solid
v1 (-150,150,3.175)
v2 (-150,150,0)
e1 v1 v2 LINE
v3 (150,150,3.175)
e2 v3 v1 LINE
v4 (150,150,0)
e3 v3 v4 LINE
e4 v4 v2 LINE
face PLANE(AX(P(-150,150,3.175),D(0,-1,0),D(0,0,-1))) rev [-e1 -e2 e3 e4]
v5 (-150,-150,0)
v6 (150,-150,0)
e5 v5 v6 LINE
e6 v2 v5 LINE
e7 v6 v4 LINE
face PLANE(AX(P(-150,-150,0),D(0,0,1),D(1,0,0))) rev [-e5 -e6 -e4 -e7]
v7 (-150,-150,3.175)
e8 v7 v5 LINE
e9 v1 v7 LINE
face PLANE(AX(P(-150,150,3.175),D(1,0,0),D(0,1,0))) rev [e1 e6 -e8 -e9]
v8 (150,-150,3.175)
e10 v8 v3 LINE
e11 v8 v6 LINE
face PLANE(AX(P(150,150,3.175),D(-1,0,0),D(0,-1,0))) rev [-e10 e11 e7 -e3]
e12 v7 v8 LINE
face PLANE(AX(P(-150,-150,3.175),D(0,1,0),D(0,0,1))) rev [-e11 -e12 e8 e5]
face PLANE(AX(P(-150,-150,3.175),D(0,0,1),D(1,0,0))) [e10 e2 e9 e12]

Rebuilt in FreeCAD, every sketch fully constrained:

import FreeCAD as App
import Part
import Sketcher


def add_polygon(sketch, points):
    """Adds a closed chain of lines whose ends are joined by coincident constraints."""
    first, n = sketch.GeometryCount, len(points)
    for a, b in zip(points, points[1:] + points[:1]):
        sketch.addGeometry(Part.LineSegment(App.Vector(*a, 0), App.Vector(*b, 0)), False)
    for i in range(n):
        sketch.addConstraint(Sketcher.Constraint("Coincident", first + i, 2, first + (i + 1) % n, 1))

doc = App.newDocument("Part")
body = doc.addObject("PartDesign::Body", "Body")

# Sketch on XY plane
sketch1 = doc.addObject("Sketcher::SketchObject", "Sketch")
body.addObject(sketch1)
sketch1.AttachmentSupport = (doc.XY_Plane, [""])
sketch1.MapMode = "FlatFace"
add_polygon(sketch1, [(-150, 150), (-150, -150), (150, -150), (150, 150)])  # lines 0-3
sketch1.addConstraint(Sketcher.Constraint("Vertical", 0))
sketch1.addConstraint(Sketcher.Constraint("Horizontal", 1))
sketch1.addConstraint(Sketcher.Constraint("Vertical", 2))
sketch1.addConstraint(Sketcher.Constraint("Horizontal", 3))
sketch1.addConstraint(Sketcher.Constraint("Symmetric", 0, 2, 2, 2, -1, 1))
sketch1.addConstraint(Sketcher.Constraint("Equal", 3, 0))
sketch1.addConstraint(Sketcher.Constraint("DistanceX", 1, 1, 1, 2, 300.0))
pad1 = doc.addObject("PartDesign::Pad", "Pad")
body.addObject(pad1)
pad1.Profile = sketch1
pad1.Length = 3.175

doc.recompute()
